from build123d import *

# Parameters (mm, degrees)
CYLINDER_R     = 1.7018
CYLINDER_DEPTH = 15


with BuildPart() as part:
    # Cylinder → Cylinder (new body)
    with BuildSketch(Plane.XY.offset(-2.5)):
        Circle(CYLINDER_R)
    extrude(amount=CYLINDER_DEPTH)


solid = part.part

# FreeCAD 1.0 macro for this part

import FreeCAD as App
import Part
import Sketcher

doc = App.newDocument("Part")
body = doc.addObject("PartDesign::Body", "Body")

# Sketch on XY plane
sketch1 = body.newObject("Sketcher::SketchObject", "Sketch")
sketch1.AttachmentSupport = (doc.getObject("XY_Plane"), [""])
sketch1.MapMode = "FlatFace"
sketch1.AttachmentOffset = App.Placement(App.Vector(0, 0, -2.5), App.Rotation())
sketch1.addGeometry(Part.Circle(App.Vector(0, 0, 0), App.Vector(0, 0, 1), 1.7), False)
sketch1.addConstraint(Sketcher.Constraint("Coincident", 0, 3, -1, 1))
sketch1.addConstraint(Sketcher.Constraint("Diameter", 0, 3.4036))
pad1 = body.newObject("PartDesign::Pad", "Pad")
pad1.Profile = sketch1
pad1.Length = 15

doc.recompute()
